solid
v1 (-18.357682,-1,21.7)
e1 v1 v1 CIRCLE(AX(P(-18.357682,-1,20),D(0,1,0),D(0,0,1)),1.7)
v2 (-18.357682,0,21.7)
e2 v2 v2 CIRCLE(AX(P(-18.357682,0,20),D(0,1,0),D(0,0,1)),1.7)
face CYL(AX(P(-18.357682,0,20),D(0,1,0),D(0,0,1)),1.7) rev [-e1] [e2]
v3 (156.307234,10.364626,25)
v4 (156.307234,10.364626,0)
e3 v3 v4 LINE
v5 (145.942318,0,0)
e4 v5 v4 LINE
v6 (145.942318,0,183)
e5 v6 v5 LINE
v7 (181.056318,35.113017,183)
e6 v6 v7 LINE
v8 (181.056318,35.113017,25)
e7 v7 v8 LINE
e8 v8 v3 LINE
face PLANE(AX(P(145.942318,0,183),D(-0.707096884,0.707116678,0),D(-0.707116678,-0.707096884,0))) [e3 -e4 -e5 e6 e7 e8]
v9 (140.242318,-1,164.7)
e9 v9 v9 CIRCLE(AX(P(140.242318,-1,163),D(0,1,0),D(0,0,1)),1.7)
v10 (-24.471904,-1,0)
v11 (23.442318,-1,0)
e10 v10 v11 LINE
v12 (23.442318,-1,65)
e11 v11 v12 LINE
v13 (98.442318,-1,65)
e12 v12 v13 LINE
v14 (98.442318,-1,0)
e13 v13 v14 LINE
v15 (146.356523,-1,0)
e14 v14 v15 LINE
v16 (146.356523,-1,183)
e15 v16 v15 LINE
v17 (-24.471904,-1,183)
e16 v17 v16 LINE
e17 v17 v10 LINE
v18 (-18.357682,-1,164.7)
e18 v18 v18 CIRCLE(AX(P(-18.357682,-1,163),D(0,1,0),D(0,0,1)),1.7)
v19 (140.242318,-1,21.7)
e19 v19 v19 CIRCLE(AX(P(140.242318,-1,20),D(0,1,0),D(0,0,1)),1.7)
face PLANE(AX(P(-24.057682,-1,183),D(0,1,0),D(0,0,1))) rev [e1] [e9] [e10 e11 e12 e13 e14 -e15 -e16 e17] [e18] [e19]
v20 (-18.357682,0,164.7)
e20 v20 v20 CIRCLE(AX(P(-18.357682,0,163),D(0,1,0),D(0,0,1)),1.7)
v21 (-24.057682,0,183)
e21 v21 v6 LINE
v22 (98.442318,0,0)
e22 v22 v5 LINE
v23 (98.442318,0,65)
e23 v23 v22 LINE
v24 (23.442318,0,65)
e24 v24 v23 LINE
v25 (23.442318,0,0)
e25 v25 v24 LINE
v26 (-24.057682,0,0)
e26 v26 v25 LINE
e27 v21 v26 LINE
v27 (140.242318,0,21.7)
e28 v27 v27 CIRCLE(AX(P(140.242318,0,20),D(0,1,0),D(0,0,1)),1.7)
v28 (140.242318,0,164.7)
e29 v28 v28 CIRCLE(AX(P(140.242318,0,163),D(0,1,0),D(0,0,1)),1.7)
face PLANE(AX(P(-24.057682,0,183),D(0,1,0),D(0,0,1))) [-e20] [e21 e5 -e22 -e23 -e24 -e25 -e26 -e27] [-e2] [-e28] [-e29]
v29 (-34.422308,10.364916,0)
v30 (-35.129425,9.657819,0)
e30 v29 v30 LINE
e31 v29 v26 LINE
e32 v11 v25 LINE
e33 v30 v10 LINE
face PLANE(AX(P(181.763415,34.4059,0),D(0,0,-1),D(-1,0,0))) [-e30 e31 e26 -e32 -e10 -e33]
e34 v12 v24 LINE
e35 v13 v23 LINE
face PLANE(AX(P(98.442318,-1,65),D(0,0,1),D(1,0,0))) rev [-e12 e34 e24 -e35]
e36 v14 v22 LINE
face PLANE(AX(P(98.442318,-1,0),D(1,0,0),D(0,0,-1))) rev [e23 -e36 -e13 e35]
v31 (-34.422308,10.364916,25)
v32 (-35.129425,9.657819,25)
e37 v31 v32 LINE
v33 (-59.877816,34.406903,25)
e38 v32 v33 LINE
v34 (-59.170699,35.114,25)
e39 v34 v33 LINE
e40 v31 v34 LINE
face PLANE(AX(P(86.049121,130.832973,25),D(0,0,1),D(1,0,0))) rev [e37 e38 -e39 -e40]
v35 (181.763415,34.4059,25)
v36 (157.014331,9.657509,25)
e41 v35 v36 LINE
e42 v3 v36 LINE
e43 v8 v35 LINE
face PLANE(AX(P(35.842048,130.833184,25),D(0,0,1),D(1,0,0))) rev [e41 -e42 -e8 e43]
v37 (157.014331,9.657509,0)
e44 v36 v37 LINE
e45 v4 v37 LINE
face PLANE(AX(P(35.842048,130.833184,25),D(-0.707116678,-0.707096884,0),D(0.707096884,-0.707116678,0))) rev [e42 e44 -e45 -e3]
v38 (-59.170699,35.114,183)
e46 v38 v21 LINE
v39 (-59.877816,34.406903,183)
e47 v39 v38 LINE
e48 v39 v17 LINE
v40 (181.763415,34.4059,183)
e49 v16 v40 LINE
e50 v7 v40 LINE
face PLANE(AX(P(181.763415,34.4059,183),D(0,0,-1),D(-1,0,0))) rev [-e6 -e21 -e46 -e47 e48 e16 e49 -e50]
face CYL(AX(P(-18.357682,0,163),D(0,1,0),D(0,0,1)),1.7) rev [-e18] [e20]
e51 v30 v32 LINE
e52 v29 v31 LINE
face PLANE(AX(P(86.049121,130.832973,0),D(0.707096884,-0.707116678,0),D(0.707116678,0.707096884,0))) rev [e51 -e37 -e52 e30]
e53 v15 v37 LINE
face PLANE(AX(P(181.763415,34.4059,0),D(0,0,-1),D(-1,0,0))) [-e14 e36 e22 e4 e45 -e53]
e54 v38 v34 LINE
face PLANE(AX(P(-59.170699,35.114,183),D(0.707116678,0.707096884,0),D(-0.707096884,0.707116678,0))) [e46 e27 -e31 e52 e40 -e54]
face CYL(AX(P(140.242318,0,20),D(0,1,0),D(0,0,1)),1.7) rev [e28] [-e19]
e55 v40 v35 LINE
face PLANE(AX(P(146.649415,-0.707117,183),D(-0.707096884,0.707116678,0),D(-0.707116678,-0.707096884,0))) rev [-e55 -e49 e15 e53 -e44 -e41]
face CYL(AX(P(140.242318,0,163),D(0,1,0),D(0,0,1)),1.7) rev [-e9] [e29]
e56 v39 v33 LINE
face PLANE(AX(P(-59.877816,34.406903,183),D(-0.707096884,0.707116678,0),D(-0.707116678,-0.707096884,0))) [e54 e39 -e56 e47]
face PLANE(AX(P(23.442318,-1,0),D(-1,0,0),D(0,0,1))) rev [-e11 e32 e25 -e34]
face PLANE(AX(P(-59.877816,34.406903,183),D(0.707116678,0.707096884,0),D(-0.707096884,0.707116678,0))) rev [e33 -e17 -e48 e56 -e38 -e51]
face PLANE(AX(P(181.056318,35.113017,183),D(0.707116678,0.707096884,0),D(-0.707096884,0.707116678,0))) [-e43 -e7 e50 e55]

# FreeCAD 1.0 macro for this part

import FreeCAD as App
import Part
import Sketcher
Q = App.Units.Quantity


def add_polygon(sketch, points):
    """Adds a closed chain of lines whose ends are joined by coincident constraints."""
    first, n = sketch.GeometryCount, len(points)
    for a, b in zip(points, points[1:] + points[:1]):
        sketch.addGeometry(Part.LineSegment(App.Vector(*a, 0), App.Vector(*b, 0)), False)
    for i in range(n):
        sketch.addConstraint(Sketcher.Constraint("Coincident", first + i, 2, first + (i + 1) % n, 1))

doc = App.newDocument("Part")
body = doc.addObject("PartDesign::Body", "Body")

sketch1 = body.newObject("Sketcher::SketchObject", "Sketch")
sketch1.AttachmentSupport = (doc.getObject("XY_Plane"), [""])
sketch1.MapMode = "FlatFace"
add_polygon(sketch1, [(-24.1, 0), (-59.2, 35.1), (-59.9, 34.4), (-24.5, -1), (146.4, -1), (181.8, 34.4), (181.1, 35.1), (145.9, 0)])
sketch1.addConstraint(Sketcher.Constraint("Horizontal", 3))
sketch1.addConstraint(Sketcher.Constraint("Horizontal", 7))
sketch1.addConstraint(Sketcher.Constraint("PointOnObject", 6, 2, -1))
sketch1.addConstraint(Sketcher.Constraint("Perpendicular", 0, 1))
sketch1.addConstraint(Sketcher.Constraint("Perpendicular", 1, 2))
sketch1.addConstraint(Sketcher.Constraint("Perpendicular", 2, 4))
sketch1.addConstraint(Sketcher.Constraint("Perpendicular", 4, 5))
sketch1.addConstraint(Sketcher.Constraint("Perpendicular", 5, 6))
sketch1.addConstraint(Sketcher.Constraint("Equal", 1, 5))
sketch1.addConstraint(Sketcher.Constraint("Equal", 0, 6))
sketch1.addConstraint(Sketcher.Constraint("DistanceX", 7, 2, 7, 1, Q("170 mm")))
sketch1.addConstraint(Sketcher.Constraint("Distance", 1, Q("1 mm")))
sketch1.addConstraint(Sketcher.Constraint("DistanceY", 2, 2, -1, 1, Q("1 mm")))
sketch1.addConstraint(Sketcher.Constraint("Distance", 0, Q("49.658 mm")))
sketch1.addConstraint(Sketcher.Constraint("DistanceY", -1, 1, 0, 2, Q("35.114 mm")))
sketch1.addConstraint(Sketcher.Constraint("DistanceX", 0, 2, -1, 1, Q("59.170699 mm")))
pad1 = body.newObject("PartDesign::Pad", "Pad")
pad1.Profile = sketch1
pad1.Length = 183

sketch2 = body.newObject("Sketcher::SketchObject", "Sketch001")
sketch2.AttachmentSupport = (doc.getObject("XZ_Plane"), [""])
sketch2.MapMode = "FlatFace"
add_polygon(sketch2, [(23, 0), (23, 65), (98, 65), (98, 0)])
sketch2.addConstraint(Sketcher.Constraint("Vertical", 0))
sketch2.addConstraint(Sketcher.Constraint("Horizontal", 1))
sketch2.addConstraint(Sketcher.Constraint("Vertical", 2))
sketch2.addConstraint(Sketcher.Constraint("Horizontal", 3))
sketch2.addConstraint(Sketcher.Constraint("PointOnObject", 2, 2, -1))
sketch2.addConstraint(Sketcher.Constraint("DistanceX", 1, 1, 1, 2, Q("75 mm")))
sketch2.addConstraint(Sketcher.Constraint("DistanceY", 0, 1, 0, 2, Q("65 mm")))
sketch2.addConstraint(Sketcher.Constraint("DistanceX", -1, 1, 0, 2, Q("23.442318 mm")))
pocket1 = body.newObject("PartDesign::Pocket", "Pocket")
pocket1.Profile = sketch2
pocket1.Length = 1
pocket1.Reversed = True

sketch3 = body.newObject("Sketcher::SketchObject", "Sketch002")
sketch3.AttachmentSupport = (doc.getObject("XZ_Plane"), [""])
sketch3.MapMode = "FlatFace"
sketch3.addGeometry(Part.Circle(App.Vector(-18.4, 20, 0), App.Vector(0, 0, 1), 1.7), False)
sketch3.addGeometry(Part.Circle(App.Vector(140.2, 20, 0), App.Vector(0, 0, 1), 1.7), False)
sketch3.addGeometry(Part.Circle(App.Vector(140.2, 163, 0), App.Vector(0, 0, 1), 1.7), False)
sketch3.addGeometry(Part.Circle(App.Vector(-18.4, 163, 0), App.Vector(0, 0, 1), 1.7), False)
sketch3.addConstraint(Sketcher.Constraint("Equal", 0, 1))
sketch3.addConstraint(Sketcher.Constraint("Equal", 1, 2))
sketch3.addConstraint(Sketcher.Constraint("Equal", 2, 3))
sketch3.addConstraint(Sketcher.Constraint("Horizontal", 0, 3, 1, 3))
sketch3.addConstraint(Sketcher.Constraint("Horizontal", 2, 3, 3, 3))
sketch3.addConstraint(Sketcher.Constraint("Vertical", 1, 3, 2, 3))
sketch3.addConstraint(Sketcher.Constraint("Vertical", 0, 3, 3, 3))
sketch3.addConstraint(Sketcher.Constraint("Diameter", 0, Q("3.4 mm")))
sketch3.addConstraint(Sketcher.Constraint("DistanceY", -1, 1, 0, 3, Q("20 mm")))
sketch3.addConstraint(Sketcher.Constraint("DistanceY", -1, 1, 2, 3, Q("163 mm")))
sketch3.addConstraint(Sketcher.Constraint("DistanceX", 0, 3, 1, 3, Q("158.6 mm")))
sketch3.addConstraint(Sketcher.Constraint("DistanceX", 0, 3, -1, 1, Q("18.357682 mm")))
doc.recompute()
hole = body.newObject("PartDesign::Hole", "Hole")
hole.Profile = sketch3
hole.ThreadType = "None"
hole.Diameter = 3.4
hole.DepthType = "ThroughAll"
hole.Reversed = True

sketch4 = body.newObject("Sketcher::SketchObject", "Sketch003")
sketch4.Placement = App.Placement(App.Vector(-12.736294, -12.735938, 0), App.Rotation(App.Vector(0, 0, 1), App.Vector(-0.707096884, 0.707116678, 0), App.Vector(-0.707116678, -0.707096884, 0), "ZXY"))
add_polygon(sketch4, [(0, 67), (0, 32), (25, 32), (25, 67)])
sketch4.addConstraint(Sketcher.Constraint("Vertical", 0))
sketch4.addConstraint(Sketcher.Constraint("Horizontal", 1))
sketch4.addConstraint(Sketcher.Constraint("Vertical", 2))
sketch4.addConstraint(Sketcher.Constraint("Horizontal", 3))
sketch4.addConstraint(Sketcher.Constraint("PointOnObject", 0, 2, -2))
sketch4.addConstraint(Sketcher.Constraint("DistanceX", 1, 1, 1, 2, Q("25 mm")))
sketch4.addConstraint(Sketcher.Constraint("DistanceY", 0, 2, 0, 1, Q("35 mm")))
sketch4.addConstraint(Sketcher.Constraint("DistanceY", -1, 1, 2, 2, Q("66.669112 mm")))
pocket2 = body.newObject("PartDesign::Pocket", "Pocket001")
pocket2.Profile = sketch4
pocket2.Type = "UpToFirst"

sketch5 = body.newObject("Sketcher::SketchObject", "Sketch004")
sketch5.Placement = App.Placement(App.Vector(73.676213, -73.678276, 0), App.Rotation(App.Vector(0.707116678, 0.707096884, 0), App.Vector(0, 0, 1), App.Vector(0.707096884, -0.707116678, 0), "ZXY"))
add_polygon(sketch5, [(118, 25), (118, 0), (153, 0), (153, 25)])
sketch5.addConstraint(Sketcher.Constraint("Vertical", 0))
sketch5.addConstraint(Sketcher.Constraint("Horizontal", 1))
sketch5.addConstraint(Sketcher.Constraint("Vertical", 2))
sketch5.addConstraint(Sketcher.Constraint("Horizontal", 3))
sketch5.addConstraint(Sketcher.Constraint("PointOnObject", 0, 2, -1))
sketch5.addConstraint(Sketcher.Constraint("DistanceX", 1, 1, 1, 2, Q("35 mm")))
sketch5.addConstraint(Sketcher.Constraint("DistanceY", 0, 2, 0, 1, Q("25 mm")))
sketch5.addConstraint(Sketcher.Constraint("DistanceX", -1, 1, 0, 2, Q("117.856247 mm")))
pocket3 = body.newObject("PartDesign::Pocket", "Pocket002")
pocket3.Profile = sketch5
pocket3.Type = "UpToFirst"

doc.recompute()
